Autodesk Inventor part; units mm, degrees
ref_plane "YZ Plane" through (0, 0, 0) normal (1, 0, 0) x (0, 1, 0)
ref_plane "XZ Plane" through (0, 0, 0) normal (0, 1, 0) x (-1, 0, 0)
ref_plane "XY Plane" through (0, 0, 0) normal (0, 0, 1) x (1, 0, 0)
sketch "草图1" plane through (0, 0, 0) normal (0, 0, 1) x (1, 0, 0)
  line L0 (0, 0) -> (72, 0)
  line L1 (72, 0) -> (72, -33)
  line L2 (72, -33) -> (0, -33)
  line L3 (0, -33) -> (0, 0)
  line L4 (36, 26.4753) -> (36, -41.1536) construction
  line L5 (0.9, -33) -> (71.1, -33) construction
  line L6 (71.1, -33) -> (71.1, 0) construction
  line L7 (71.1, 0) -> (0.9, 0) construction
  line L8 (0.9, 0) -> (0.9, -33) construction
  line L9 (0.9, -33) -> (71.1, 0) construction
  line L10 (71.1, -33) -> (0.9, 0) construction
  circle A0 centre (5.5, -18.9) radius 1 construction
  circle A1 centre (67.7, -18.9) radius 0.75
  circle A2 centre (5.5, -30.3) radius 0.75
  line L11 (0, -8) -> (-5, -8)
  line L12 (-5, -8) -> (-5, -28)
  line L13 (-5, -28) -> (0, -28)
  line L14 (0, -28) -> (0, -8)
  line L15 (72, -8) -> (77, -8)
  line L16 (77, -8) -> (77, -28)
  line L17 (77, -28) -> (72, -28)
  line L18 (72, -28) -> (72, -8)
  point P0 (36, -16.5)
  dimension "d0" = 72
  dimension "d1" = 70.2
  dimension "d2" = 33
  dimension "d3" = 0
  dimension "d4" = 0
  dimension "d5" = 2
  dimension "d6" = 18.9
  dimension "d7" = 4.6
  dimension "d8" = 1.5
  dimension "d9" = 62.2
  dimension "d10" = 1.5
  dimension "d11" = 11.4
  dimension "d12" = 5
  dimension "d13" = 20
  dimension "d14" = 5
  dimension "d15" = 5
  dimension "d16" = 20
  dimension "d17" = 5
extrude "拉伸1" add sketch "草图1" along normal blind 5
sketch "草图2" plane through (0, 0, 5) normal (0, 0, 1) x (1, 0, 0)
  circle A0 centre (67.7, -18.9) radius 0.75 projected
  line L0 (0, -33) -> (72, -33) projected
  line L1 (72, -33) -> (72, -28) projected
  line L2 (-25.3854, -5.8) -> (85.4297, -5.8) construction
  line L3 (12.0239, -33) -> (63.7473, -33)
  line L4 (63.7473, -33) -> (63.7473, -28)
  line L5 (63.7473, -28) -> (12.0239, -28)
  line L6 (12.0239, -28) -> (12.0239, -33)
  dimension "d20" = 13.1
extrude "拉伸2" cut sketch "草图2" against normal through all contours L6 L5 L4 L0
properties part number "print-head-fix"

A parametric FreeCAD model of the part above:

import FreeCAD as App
import Part
import Sketcher
from FreeCAD import Vector


def add_polygon(sketch, points):
    """Adds a closed chain of lines whose ends are joined by coincident constraints."""
    first, n = sketch.GeometryCount, len(points)
    for a, b in zip(points, points[1:] + points[:1]):
        sketch.addGeometry(Part.LineSegment(App.Vector(*a, 0), App.Vector(*b, 0)), False)
    for i in range(n):
        sketch.addConstraint(Sketcher.Constraint("Coincident", first + i, 2, first + (i + 1) % n, 1))

doc = App.newDocument("Part")
body = doc.addObject("PartDesign::Body", "Body")

sketch1 = body.newObject("Sketcher::SketchObject", "Sketch")
sketch1.AttachmentSupport = (doc.getObject("XY_Plane"), [""])
sketch1.MapMode = "FlatFace"
add_polygon(sketch1, [(72, 0), (0, 0), (0, -8), (-5, -8), (-5, -28), (0, -28), (0, -33), (72, -33), (72, -28), (77, -28), (77, -8), (72, -8)])
sketch1.addGeometry(Part.Circle(Vector(5.5, -30.3, 0), Vector(0, 0, 1), 0.75), False)
sketch1.addGeometry(Part.Circle(Vector(67.7, -18.9, 0), Vector(0, 0, 1), 0.75), False)
sketch1.addConstraint([
    Sketcher.Constraint("Horizontal", 0),
    Sketcher.Constraint("Vertical", 1),
    Sketcher.Constraint("Horizontal", 2),
    Sketcher.Constraint("Vertical", 3),
    Sketcher.Constraint("Horizontal", 4),
    Sketcher.Constraint("Vertical", 5),
    Sketcher.Constraint("Horizontal", 6),
    Sketcher.Constraint("Vertical", 7),
    Sketcher.Constraint("Horizontal", 8),
    Sketcher.Constraint("Vertical", 9),
    Sketcher.Constraint("Horizontal", 10),
    Sketcher.Constraint("Vertical", 11),
    Sketcher.Constraint("Coincident", 0, 2, -1, 1),
    Sketcher.Constraint("Equal", 12, 13),
    Sketcher.Constraint("PointOnObject", 4, 2, -2),
    Sketcher.Constraint("Horizontal", 4, 2, 7, 2),
    Sketcher.Constraint("Horizontal", 2, 2, 9, 2),
    Sketcher.Constraint("Vertical", 7, 2, 10, 2),
    Sketcher.Constraint("Equal", 4, 8),
    Sketcher.Constraint("Equal", 10, 5),
    Sketcher.Constraint("Diameter", 12, 1.5),
    Sketcher.Constraint("DistanceX", 0, 2, 0, 1, 72.0),
    Sketcher.Constraint("DistanceX", 2, 2, 2, 1, 5.0),
    Sketcher.Constraint("DistanceY", 3, 2, 3, 1, 20.0),
    Sketcher.Constraint("DistanceY", 5, 2, -1, 1, 33.0),
    Sketcher.Constraint("DistanceY", 13, 3, -1, 1, 18.9),
    Sketcher.Constraint("DistanceX", 12, 3, 13, 3, 62.2),
    Sketcher.Constraint("DistanceY", 12, 3, 13, 3, 11.4),
    Sketcher.Constraint("DistanceX", -1, 1, 12, 3, 5.5),
])
pad1 = body.newObject("PartDesign::Pad", "Pad")
pad1.Profile = sketch1
pad1.Length = 5

sketch2 = body.newObject("Sketcher::SketchObject", "Sketch001")
sketch2.AttachmentSupport = (doc.getObject("XY_Plane"), [""])
sketch2.MapMode = "FlatFace"
sketch2.AttachmentOffset = App.Placement(Vector(0, 0, 5), App.Rotation())
add_polygon(sketch2, [(12.0239, -28), (12.0239, -33), (63.7473, -33), (63.7473, -28)])
sketch2.addConstraint([
    Sketcher.Constraint("Vertical", 0),
    Sketcher.Constraint("Horizontal", 1),
    Sketcher.Constraint("Vertical", 2),
    Sketcher.Constraint("Horizontal", 3),
    Sketcher.Constraint("DistanceY", 0, 2, 0, 1, 5.0),
    Sketcher.Constraint("DistanceY", 0, 2, -1, 1, 33.0),
    Sketcher.Constraint("DistanceX", 1, 1, 1, 2, 51.7234),
    Sketcher.Constraint("DistanceX", -1, 1, 0, 2, 12.024),
])
pocket1 = body.newObject("PartDesign::Pocket", "Pocket")
pocket1.Profile = sketch2
pocket1.Type = "ThroughAll"

doc.recompute()
